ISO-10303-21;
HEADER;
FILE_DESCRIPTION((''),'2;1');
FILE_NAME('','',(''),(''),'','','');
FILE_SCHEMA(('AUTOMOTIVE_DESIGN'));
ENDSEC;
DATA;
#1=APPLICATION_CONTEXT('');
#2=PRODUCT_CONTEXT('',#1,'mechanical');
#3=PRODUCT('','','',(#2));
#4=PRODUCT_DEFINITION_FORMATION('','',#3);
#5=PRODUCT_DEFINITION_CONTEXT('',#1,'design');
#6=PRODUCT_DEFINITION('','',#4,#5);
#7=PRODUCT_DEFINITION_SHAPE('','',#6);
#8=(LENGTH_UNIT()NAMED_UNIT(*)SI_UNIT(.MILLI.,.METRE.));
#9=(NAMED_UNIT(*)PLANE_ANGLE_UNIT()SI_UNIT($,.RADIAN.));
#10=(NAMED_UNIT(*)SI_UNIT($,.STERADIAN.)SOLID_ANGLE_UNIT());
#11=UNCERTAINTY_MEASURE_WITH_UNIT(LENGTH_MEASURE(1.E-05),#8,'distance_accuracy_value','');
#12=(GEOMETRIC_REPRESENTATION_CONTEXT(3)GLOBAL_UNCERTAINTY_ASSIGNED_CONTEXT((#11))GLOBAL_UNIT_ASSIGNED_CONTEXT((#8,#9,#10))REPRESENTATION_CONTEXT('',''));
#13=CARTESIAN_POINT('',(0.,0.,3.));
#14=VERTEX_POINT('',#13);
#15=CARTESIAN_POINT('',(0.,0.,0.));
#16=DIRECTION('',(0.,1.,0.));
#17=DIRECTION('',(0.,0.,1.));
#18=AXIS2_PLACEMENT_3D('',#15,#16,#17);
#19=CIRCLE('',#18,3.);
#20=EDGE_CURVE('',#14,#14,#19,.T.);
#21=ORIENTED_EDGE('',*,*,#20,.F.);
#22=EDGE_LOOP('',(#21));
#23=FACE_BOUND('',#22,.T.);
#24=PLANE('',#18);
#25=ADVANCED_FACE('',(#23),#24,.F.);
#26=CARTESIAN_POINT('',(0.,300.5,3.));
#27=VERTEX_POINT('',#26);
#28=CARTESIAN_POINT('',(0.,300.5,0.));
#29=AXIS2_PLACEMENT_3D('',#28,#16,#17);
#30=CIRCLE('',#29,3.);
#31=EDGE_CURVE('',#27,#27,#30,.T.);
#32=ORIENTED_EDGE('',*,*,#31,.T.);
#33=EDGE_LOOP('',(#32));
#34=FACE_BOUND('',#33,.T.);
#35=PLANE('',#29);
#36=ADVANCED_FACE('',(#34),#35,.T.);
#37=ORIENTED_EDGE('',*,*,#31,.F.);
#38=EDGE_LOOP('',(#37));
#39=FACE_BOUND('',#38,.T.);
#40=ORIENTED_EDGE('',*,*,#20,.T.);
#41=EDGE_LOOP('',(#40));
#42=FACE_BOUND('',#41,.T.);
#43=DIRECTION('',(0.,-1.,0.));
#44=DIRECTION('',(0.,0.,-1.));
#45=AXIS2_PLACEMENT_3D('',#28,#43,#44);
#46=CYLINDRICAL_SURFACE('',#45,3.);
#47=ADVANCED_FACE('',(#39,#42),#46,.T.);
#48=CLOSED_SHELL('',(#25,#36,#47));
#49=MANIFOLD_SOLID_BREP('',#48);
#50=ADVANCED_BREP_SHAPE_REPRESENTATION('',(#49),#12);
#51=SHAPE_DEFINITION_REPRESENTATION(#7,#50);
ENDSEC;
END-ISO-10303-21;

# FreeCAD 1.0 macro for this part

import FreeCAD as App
import Part
import Sketcher

doc = App.newDocument("Part")
body = doc.addObject("PartDesign::Body", "Body")

# Sketch on XZ plane
sketch1 = doc.addObject("Sketcher::SketchObject", "Sketch")
body.addObject(sketch1)
sketch1.AttachmentSupport = (doc.XZ_Plane, [""])
sketch1.MapMode = "FlatFace"
sketch1.addGeometry(Part.Circle(App.Vector(0, 0, 0), App.Vector(0, 0, 1), 3), False)
sketch1.addConstraint(Sketcher.Constraint("Coincident", 0, 3, -1, 1))
sketch1.addConstraint(Sketcher.Constraint("Diameter", 0, 6.0))
pad1 = doc.addObject("PartDesign::Pad", "Pad")
body.addObject(pad1)
pad1.Profile = sketch1
pad1.Length = 300.5
pad1.Reversed = True

doc.recompute()
